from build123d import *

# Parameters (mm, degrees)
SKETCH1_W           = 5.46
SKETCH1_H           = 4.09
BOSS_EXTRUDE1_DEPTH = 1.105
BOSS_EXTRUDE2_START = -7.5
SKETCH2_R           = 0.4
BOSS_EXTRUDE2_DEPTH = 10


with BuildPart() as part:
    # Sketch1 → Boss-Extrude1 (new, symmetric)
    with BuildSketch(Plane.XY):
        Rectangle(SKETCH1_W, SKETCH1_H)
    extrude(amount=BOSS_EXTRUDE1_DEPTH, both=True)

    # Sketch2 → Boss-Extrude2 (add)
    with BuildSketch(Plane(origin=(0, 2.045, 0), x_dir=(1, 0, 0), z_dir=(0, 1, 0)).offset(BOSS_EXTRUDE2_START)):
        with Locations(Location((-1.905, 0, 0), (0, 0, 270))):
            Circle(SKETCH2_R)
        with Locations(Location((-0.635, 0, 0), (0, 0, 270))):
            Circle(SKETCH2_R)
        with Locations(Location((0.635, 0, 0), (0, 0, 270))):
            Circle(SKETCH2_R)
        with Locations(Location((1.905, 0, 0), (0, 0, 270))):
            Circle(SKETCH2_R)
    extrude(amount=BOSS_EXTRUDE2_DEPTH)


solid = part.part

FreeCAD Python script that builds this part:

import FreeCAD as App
import Part
import Sketcher

V = App.Vector


def add_polygon(sketch, points):
    """Adds a closed chain of lines whose ends are joined by coincident constraints."""
    first, n = sketch.GeometryCount, len(points)
    for a, b in zip(points, points[1:] + points[:1]):
        sketch.addGeometry(Part.LineSegment(App.Vector(*a, 0), App.Vector(*b, 0)), False)
    for i in range(n):
        sketch.addConstraint(Sketcher.Constraint("Coincident", first + i, 2, first + (i + 1) % n, 1))

doc = App.newDocument("Part")
body = doc.addObject("PartDesign::Body", "Body")

sketch1 = body.newObject("Sketcher::SketchObject", "Sketch")
sketch1.AttachmentSupport = (doc.getObject("XY_Plane"), [""])
sketch1.MapMode = "FlatFace"
add_polygon(sketch1, [(-2.73, 2.045), (-2.73, -2.045), (2.73, -2.045), (2.73, 2.045)])
sketch1.addConstraint([
    Sketcher.Constraint("Vertical", 0),
    Sketcher.Constraint("Horizontal", 1),
    Sketcher.Constraint("Vertical", 2),
    Sketcher.Constraint("Horizontal", 3),
    Sketcher.Constraint("Symmetric", 0, 2, 2, 2, -1, 1),
    Sketcher.Constraint("DistanceX", 1, 1, 1, 2, 5.46),
    Sketcher.Constraint("DistanceY", 0, 2, 0, 1, 4.09),
])
pad1 = body.newObject("PartDesign::Pad", "Pad")
pad1.Profile = sketch1
pad1.Length = 2.21
pad1.Midplane = True

sketch2 = body.newObject("Sketcher::SketchObject", "Sketch001")
sketch2.AttachmentSupport = (doc.getObject("XZ_Plane"), [""])
sketch2.MapMode = "FlatFace"
sketch2.AttachmentOffset = App.Placement(V(0, 0, 5.455), App.Rotation())
sketch2.addGeometry([
    Part.Circle(V(-1.905, 0, 0), V(0, 0, 1), 0.4),
    Part.Circle(V(-0.635, 0, 0), V(0, 0, 1), 0.4),
    Part.Circle(V(0.635, 0, 0), V(0, 0, 1), 0.4),
    Part.Circle(V(1.905, 0, 0), V(0, 0, 1), 0.4),
], False)
sketch2.addConstraint([
    Sketcher.Constraint("Equal", 0, 1),
    Sketcher.Constraint("Equal", 1, 2),
    Sketcher.Constraint("Equal", 2, 3),
    Sketcher.Constraint("Symmetric", 1, 3, 2, 3, -1, 1),
    Sketcher.Constraint("Symmetric", 0, 3, 3, 3, -1, 1),
    Sketcher.Constraint("PointOnObject", 0, 3, -1),
    Sketcher.Constraint("PointOnObject", 1, 3, -1),
    Sketcher.Constraint("Diameter", 0, 0.8),
    Sketcher.Constraint("DistanceX", 0, 3, 1, 3, 1.27),
    Sketcher.Constraint("DistanceX", 1, 3, 2, 3, 1.27),
])
pad2 = body.newObject("PartDesign::Pad", "Pad001")
pad2.Profile = sketch2
pad2.Length = 10
pad2.Reversed = True

doc.recompute()
